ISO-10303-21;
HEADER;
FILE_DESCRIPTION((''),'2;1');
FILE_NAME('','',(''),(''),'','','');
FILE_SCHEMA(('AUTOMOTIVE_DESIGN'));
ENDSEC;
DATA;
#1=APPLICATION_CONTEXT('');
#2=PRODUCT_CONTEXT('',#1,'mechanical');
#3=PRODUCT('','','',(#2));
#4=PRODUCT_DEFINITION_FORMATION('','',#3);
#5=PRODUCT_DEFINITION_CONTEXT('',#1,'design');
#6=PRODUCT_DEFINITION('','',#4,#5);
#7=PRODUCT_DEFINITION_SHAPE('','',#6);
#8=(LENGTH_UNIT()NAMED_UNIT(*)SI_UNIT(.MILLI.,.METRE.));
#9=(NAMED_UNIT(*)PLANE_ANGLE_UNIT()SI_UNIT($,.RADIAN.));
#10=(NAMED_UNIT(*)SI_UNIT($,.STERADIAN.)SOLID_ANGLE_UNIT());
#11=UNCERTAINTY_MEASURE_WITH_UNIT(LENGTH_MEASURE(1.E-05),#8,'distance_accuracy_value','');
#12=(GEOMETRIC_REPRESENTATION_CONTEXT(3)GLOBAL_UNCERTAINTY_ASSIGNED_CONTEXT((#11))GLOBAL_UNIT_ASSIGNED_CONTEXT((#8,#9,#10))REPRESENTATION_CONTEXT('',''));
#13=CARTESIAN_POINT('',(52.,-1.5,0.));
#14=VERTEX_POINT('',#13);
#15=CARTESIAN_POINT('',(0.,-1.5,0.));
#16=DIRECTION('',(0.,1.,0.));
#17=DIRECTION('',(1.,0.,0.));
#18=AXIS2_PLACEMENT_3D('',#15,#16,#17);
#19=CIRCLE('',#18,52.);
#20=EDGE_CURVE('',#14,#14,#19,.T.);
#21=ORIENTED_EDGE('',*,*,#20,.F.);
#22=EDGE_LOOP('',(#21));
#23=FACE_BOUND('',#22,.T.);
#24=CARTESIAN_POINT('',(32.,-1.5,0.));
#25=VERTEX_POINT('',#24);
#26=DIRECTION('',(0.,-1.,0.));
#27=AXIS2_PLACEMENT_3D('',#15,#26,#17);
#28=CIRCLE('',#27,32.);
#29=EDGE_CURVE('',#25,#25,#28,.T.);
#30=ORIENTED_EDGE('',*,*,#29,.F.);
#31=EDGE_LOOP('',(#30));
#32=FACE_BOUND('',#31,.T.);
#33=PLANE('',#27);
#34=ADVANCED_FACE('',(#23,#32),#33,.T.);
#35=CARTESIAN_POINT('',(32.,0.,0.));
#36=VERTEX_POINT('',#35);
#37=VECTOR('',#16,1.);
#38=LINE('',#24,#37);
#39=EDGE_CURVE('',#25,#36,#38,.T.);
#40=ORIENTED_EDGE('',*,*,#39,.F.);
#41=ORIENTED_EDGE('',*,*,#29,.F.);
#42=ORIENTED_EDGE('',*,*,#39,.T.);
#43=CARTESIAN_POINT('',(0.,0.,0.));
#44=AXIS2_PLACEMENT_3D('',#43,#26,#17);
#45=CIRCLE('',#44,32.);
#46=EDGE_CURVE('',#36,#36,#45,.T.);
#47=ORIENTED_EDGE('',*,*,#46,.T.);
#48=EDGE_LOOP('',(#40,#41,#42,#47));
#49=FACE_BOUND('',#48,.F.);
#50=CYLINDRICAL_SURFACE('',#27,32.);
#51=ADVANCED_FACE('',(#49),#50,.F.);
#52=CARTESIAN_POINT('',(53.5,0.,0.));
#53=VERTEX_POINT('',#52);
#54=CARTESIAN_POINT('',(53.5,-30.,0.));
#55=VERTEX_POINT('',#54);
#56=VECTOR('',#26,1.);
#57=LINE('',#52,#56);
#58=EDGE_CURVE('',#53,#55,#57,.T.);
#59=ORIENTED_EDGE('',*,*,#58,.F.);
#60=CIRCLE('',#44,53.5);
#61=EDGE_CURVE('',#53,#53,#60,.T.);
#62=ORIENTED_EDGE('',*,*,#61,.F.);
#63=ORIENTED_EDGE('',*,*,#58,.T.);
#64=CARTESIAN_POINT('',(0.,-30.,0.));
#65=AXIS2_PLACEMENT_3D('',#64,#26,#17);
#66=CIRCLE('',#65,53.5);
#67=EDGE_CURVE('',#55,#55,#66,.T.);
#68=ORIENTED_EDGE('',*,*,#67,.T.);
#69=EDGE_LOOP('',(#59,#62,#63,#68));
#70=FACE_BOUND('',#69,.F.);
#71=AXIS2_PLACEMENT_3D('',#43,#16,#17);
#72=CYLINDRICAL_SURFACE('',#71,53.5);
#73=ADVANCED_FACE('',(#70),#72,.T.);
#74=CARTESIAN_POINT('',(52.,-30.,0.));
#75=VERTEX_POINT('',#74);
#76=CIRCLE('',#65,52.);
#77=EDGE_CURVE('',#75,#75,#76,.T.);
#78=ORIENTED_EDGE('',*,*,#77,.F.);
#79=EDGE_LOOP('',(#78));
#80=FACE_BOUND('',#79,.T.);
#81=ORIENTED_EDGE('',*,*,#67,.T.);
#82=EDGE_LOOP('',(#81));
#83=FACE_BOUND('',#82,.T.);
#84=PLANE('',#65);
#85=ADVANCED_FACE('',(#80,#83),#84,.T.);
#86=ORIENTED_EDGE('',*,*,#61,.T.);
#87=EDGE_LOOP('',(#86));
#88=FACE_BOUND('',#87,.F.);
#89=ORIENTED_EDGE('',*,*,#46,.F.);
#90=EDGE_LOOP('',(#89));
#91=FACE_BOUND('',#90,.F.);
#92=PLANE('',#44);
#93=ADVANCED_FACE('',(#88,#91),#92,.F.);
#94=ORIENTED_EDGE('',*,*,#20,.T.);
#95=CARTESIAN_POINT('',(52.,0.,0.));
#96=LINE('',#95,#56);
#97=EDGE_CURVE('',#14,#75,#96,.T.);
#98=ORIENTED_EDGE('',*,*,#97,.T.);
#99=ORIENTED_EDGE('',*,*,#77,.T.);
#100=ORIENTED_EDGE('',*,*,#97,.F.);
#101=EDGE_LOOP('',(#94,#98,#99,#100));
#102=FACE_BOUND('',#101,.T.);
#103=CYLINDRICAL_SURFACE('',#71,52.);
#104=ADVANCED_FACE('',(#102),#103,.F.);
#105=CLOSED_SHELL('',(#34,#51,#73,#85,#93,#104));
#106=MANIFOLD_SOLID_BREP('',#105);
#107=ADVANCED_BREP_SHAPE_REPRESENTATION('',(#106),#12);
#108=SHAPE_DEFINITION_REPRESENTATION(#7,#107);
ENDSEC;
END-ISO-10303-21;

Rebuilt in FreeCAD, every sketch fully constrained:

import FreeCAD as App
import Part
import Sketcher

V = App.Vector


def faces_at(feature, points):
    """Names of the faces that lie closest to the given points."""
    faces = feature.Shape.Faces
    near = lambda p: min(range(len(faces)), key=lambda i: faces[i].distToShape(Part.Vertex(*p))[0])
    return sorted({f"Face{near(p) + 1}" for p in points})

doc = App.newDocument("Part")
body = doc.addObject("PartDesign::Body", "Body")

sketch1 = body.newObject("Sketcher::SketchObject", "Sketch")
sketch1.AttachmentSupport = (doc.getObject("XZ_Plane"), [""])
sketch1.MapMode = "FlatFace"
sketch1.addGeometry(Part.Circle(V(0, 0, 0), V(0, 0, 1), 54), False)
sketch1.addConstraint(Sketcher.Constraint("Coincident", 0, 3, -1, 1))
sketch1.addConstraint(Sketcher.Constraint("Diameter", 0, 107.0))
pad1 = body.newObject("PartDesign::Pad", "Pad")
pad1.Profile = sketch1
pad1.Length = 30
doc.recompute()

thickness = body.newObject("PartDesign::Thickness", "Thickness")
thickness.Base = (pad1, faces_at(pad1, [(0, -30, 0)]))
thickness.Value = 1.5
thickness.Reversed = True
thickness.Join = "Arc"

sketch2 = body.newObject("Sketcher::SketchObject", "Sketch001")
sketch2.AttachmentSupport = (doc.getObject("XZ_Plane"), [""])
sketch2.MapMode = "FlatFace"
sketch2.AttachmentOffset = App.Placement(V(0, 0, 1.5), App.Rotation())
sketch2.addGeometry(Part.Circle(V(0, 0, 0), V(0, 0, 1), 32), False)
sketch2.addConstraint(Sketcher.Constraint("Coincident", 0, 3, -1, 1))
sketch2.addConstraint(Sketcher.Constraint("Diameter", 0, 64.0))
pocket1 = body.newObject("PartDesign::Pocket", "Pocket")
pocket1.Profile = sketch2
pocket1.Length = 25

doc.recompute()
